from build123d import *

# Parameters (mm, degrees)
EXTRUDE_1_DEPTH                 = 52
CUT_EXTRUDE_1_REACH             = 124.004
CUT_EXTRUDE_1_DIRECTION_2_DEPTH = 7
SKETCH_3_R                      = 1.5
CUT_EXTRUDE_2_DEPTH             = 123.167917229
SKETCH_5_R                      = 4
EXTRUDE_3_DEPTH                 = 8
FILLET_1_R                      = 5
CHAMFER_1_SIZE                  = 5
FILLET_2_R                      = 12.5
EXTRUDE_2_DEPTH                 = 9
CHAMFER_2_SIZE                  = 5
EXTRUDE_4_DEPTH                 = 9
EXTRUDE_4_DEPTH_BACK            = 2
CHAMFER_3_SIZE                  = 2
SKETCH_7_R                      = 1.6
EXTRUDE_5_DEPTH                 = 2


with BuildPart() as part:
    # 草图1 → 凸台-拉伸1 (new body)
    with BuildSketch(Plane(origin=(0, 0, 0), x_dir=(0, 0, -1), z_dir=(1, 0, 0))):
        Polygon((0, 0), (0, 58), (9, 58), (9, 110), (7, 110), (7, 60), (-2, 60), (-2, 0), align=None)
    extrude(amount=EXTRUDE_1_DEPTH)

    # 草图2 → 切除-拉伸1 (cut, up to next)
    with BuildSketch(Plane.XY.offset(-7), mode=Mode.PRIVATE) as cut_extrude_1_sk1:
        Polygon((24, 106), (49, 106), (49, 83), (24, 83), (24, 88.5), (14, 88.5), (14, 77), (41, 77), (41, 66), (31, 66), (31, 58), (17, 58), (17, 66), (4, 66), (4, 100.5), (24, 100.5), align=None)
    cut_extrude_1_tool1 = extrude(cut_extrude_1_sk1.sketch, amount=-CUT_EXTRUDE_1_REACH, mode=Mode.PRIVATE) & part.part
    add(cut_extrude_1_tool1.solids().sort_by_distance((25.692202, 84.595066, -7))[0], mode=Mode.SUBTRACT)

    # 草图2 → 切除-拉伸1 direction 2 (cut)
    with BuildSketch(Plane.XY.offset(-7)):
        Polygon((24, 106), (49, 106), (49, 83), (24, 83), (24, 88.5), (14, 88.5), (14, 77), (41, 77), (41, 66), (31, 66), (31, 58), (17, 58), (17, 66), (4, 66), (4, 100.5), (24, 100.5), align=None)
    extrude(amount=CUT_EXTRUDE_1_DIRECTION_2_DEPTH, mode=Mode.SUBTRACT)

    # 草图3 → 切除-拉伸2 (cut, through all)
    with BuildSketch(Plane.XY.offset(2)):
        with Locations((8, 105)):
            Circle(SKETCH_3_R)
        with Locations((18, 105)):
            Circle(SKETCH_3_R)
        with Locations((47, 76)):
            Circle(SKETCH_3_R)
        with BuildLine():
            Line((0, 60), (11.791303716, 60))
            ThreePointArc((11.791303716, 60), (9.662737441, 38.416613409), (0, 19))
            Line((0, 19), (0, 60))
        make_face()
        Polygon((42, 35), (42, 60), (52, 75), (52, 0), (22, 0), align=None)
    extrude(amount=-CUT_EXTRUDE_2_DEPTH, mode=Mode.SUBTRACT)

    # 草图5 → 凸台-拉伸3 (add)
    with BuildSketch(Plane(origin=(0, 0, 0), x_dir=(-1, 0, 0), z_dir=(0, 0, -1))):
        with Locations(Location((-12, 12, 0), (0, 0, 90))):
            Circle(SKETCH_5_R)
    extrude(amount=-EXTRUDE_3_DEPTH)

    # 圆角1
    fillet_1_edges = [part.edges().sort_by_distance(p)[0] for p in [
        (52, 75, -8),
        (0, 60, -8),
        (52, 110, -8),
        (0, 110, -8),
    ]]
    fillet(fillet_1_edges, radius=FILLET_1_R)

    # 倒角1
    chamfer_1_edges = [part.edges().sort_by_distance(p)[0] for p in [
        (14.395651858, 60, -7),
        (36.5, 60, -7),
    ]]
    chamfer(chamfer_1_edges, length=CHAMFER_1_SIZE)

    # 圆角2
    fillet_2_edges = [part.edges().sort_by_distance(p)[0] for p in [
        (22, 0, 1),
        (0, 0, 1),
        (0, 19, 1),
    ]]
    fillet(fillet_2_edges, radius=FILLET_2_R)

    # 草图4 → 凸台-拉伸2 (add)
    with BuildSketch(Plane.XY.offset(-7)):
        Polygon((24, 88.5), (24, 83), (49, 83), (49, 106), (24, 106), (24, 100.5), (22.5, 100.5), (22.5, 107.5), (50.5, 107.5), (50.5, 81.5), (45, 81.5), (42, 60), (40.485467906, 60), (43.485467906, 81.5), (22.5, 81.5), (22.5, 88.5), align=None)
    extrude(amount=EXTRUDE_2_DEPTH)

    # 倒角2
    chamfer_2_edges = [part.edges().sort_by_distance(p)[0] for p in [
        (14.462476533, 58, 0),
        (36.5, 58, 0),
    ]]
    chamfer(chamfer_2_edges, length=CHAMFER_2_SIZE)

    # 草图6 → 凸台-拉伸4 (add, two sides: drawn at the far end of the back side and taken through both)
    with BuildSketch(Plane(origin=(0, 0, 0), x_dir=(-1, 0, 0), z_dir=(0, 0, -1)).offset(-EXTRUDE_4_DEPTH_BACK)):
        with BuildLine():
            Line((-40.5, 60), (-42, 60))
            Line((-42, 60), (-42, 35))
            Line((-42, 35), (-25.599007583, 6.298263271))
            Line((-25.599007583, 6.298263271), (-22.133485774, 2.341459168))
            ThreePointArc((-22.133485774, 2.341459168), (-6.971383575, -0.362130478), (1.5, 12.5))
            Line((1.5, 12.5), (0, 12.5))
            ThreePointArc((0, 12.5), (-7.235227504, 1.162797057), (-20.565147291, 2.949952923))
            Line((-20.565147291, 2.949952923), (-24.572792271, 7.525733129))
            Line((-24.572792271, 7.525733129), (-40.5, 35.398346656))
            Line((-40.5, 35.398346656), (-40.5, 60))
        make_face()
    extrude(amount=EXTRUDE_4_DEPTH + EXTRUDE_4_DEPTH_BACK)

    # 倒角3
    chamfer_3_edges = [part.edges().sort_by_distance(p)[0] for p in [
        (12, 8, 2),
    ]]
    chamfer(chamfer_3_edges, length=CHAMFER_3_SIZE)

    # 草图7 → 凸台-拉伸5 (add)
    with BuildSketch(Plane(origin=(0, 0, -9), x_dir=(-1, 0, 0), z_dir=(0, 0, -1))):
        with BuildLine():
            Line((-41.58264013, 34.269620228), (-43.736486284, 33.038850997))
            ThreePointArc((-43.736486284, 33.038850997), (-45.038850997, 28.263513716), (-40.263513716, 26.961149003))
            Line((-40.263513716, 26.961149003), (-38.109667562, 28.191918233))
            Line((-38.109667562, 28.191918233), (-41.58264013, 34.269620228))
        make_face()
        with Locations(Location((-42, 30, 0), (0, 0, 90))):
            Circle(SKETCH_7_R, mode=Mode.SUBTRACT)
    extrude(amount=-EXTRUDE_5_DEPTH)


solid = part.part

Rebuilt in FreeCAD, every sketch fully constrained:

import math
import FreeCAD as App
import Part
import Sketcher


def edges_at(feature, points):
    """Names of the edges that pass closest to the given points."""
    edges = feature.Shape.Edges
    near = lambda p: min(range(len(edges)), key=lambda i: edges[i].distToShape(Part.Vertex(*p))[0])
    return sorted({f"Edge{near(p) + 1}" for p in points})


def add_polygon(sketch, points):
    """Adds a closed chain of lines whose ends are joined by coincident constraints."""
    first, n = sketch.GeometryCount, len(points)
    for a, b in zip(points, points[1:] + points[:1]):
        sketch.addGeometry(Part.LineSegment(App.Vector(*a, 0), App.Vector(*b, 0)), False)
    for i in range(n):
        sketch.addConstraint(Sketcher.Constraint("Coincident", first + i, 2, first + (i + 1) % n, 1))

doc = App.newDocument("Part")
params = doc.addObject("Spreadsheet::Sheet", "Params")
for row, (alias, value) in enumerate([
    ("sketch1_width", "58 mm"),
    ("sketch1_width2", "52 mm"),
    ("sketch1_width3", "50 mm"),
    ("sketch1_height", "9 mm"),
    ("sketch1_height2", "2 mm"),
    ("pad1_length", "52 mm"),
    ("sketch2_width", "25 mm"),
    ("sketch2_width2", "20 mm"),
    ("sketch2_width3", "13 mm"),
    ("sketch2_width4", "14 mm"),
    ("sketch2_width5", "10 mm"),
    ("sketch3_width", "25 mm"),
    ("sketch3_width2", "20 mm"),
    ("sketch3_width3", "13 mm"),
    ("sketch3_width4", "14 mm"),
    ("sketch3_width5", "10 mm"),
    ("pocket2_length", "7 mm"),
    ("sketch4_diameter", "3 mm"),
    ("sketch4_radius", "60 mm"),
    ("sketch4_width", "30 mm"),
    ("sketch4_height", "41 mm"),
    ("sketch4_height2", "25 mm"),
    ("sketch5_diameter", "8 mm"),
    ("pad2_length", "8 mm"),
    ("fillet_radius", "5 mm"),
    ("chamfer_size", "5 mm"),
    ("fillet2_radius", "12.5 mm"),
    ("sketch6_width", "28 mm"),
    ("sketch6_width2", "25 mm"),
    ("sketch6_height", "7 mm"),
    ("sketch6_height2", "26 mm"),
    ("sketch6_height3", "23 mm"),
    ("pad3_length", "9 mm"),
    ("chamfer2_size", "5 mm"),
    ("sketch7_radius", "14 mm"),
    ("sketch7_radius2", "12.5 mm"),
    ("sketch7_height", "25 mm"),
    ("pad4_length", "9 mm"),
    ("pad4_length2", "2 mm"),
    ("chamfer3_size", "2 mm"),
    ("sketch8_diameter", "3.2 mm"),
    ("sketch8_radius", "3.5 mm"),
    ("pad5_length", "2 mm"),
], start=1):
    params.set(f"A{row}", alias)
    params.set(f"B{row}", "=" + value)
    params.setAlias(f"B{row}", alias)

body = doc.addObject("PartDesign::Body", "Body")

# Sketch on YZ plane
sketch1 = body.newObject("Sketcher::SketchObject", "Sketch")
sketch1.AttachmentSupport = (doc.getObject("YZ_Plane"), [""])
sketch1.MapMode = "FlatFace"
add_polygon(sketch1, [(0, 0), (58, 0), (58, -9), (110, -9), (110, -7), (60, -7), (60, 2), (0, 2)])  # lines 0-7
sketch1.addConstraint([
    Sketcher.Constraint("Horizontal", 0),
    Sketcher.Constraint("Vertical", 1),
    Sketcher.Constraint("Horizontal", 2),
    Sketcher.Constraint("Vertical", 3),
    Sketcher.Constraint("Horizontal", 4),
    Sketcher.Constraint("Vertical", 5),
    Sketcher.Constraint("Horizontal", 6),
    Sketcher.Constraint("Vertical", 7),
    Sketcher.Constraint("Coincident", 7, 2, -1, 1),
    Sketcher.Constraint("Equal", 1, 5),
    Sketcher.Constraint("DistanceX", 0, 1, 0, 2, 58.0),
    Sketcher.Constraint("DistanceX", 2, 1, 2, 2, 52.0),
    Sketcher.Constraint("DistanceX", 4, 2, 4, 1, 50.0),
    Sketcher.Constraint("DistanceY", 1, 2, 1, 1, 9.0),
    Sketcher.Constraint("DistanceY", 3, 1, 3, 2, 2.0),
])
sketch1.setExpression("Constraints[18]", "Params.sketch1_width")
sketch1.setExpression("Constraints[19]", "Params.sketch1_width2")
sketch1.setExpression("Constraints[20]", "Params.sketch1_width3")
sketch1.setExpression("Constraints[21]", "Params.sketch1_height")
sketch1.setExpression("Constraints[22]", "Params.sketch1_height2")
pad1 = body.newObject("PartDesign::Pad", "Pad")
pad1.Profile = sketch1
pad1.setExpression("Length", "Params.pad1_length")

# Sketch on XY plane
sketch2 = body.newObject("Sketcher::SketchObject", "Sketch001")
sketch2.AttachmentSupport = (doc.getObject("XY_Plane"), [""])
sketch2.MapMode = "FlatFace"
sketch2.AttachmentOffset = App.Placement(App.Vector(0, 0, -7), App.Rotation())
add_polygon(sketch2, [(49, 106), (24, 106), (24, 100), (4, 100), (4, 66), (17, 66), (17, 58), (31, 58), (31, 66), (41, 66), (41, 77), (14, 77), (14, 88), (24, 88), (24, 83), (49, 83)])  # lines 0-15
sketch2.addConstraint([
    Sketcher.Constraint("Horizontal", 0),
    Sketcher.Constraint("Vertical", 1),
    Sketcher.Constraint("Horizontal", 2),
    Sketcher.Constraint("Vertical", 3),
    Sketcher.Constraint("Horizontal", 4),
    Sketcher.Constraint("Vertical", 5),
    Sketcher.Constraint("Horizontal", 6),
    Sketcher.Constraint("Vertical", 7),
    Sketcher.Constraint("Horizontal", 8),
    Sketcher.Constraint("Vertical", 9),
    Sketcher.Constraint("Horizontal", 10),
    Sketcher.Constraint("Vertical", 11),
    Sketcher.Constraint("Horizontal", 12),
    Sketcher.Constraint("Vertical", 13),
    Sketcher.Constraint("Horizontal", 14),
    Sketcher.Constraint("Vertical", 15),
    Sketcher.Constraint("Horizontal", 4, 2, 7, 2),
    Sketcher.Constraint("Vertical", 1, 2, 12, 2),
    Sketcher.Constraint("Equal", 8, 12),
    Sketcher.Constraint("Equal", 1, 13),
    Sketcher.Constraint("DistanceX", 0, 2, 0, 1, 25.0),
    Sketcher.Constraint("DistanceX", 2, 2, 2, 1, 20.0),
    Sketcher.Constraint("DistanceX", 4, 1, 4, 2, 13.0),
    Sketcher.Constraint("DistanceX", 6, 1, 6, 2, 14.0),
    Sketcher.Constraint("DistanceX", 8, 1, 8, 2, 10.0),
    Sketcher.Constraint("DistanceY", 5, 2, 5, 1, 8.0),
    Sketcher.Constraint("DistanceY", 9, 1, 9, 2, 11.0),
    Sketcher.Constraint("DistanceY", 15, 1, 15, 2, 23.0),
    Sketcher.Constraint("DistanceY", 1, 2, 1, 1, 5.5),
    Sketcher.Constraint("DistanceY", 3, 2, 3, 1, 34.5),
    Sketcher.Constraint("DistanceX", -1, 1, 0, 2, 24.0),
    Sketcher.Constraint("DistanceY", -1, 1, 0, 2, 106.0),
])
sketch2.setExpression("Constraints[36]", "Params.sketch2_width")
sketch2.setExpression("Constraints[37]", "Params.sketch2_width2")
sketch2.setExpression("Constraints[38]", "Params.sketch2_width3")
sketch2.setExpression("Constraints[39]", "Params.sketch2_width4")
sketch2.setExpression("Constraints[40]", "Params.sketch2_width5")
pocket1 = body.newObject("PartDesign::Pocket", "Pocket")
pocket1.Profile = sketch2
pocket1.Type = "UpToFirst"

# Sketch on XY plane
sketch3 = body.newObject("Sketcher::SketchObject", "Sketch002")
sketch3.AttachmentSupport = (doc.getObject("XY_Plane"), [""])
sketch3.MapMode = "FlatFace"
sketch3.AttachmentOffset = App.Placement(App.Vector(0, 0, -7), App.Rotation())
add_polygon(sketch3, [(49, 106), (24, 106), (24, 100), (4, 100), (4, 66), (17, 66), (17, 58), (31, 58), (31, 66), (41, 66), (41, 77), (14, 77), (14, 88), (24, 88), (24, 83), (49, 83)])  # lines 0-15
sketch3.addConstraint([
    Sketcher.Constraint("Horizontal", 0),
    Sketcher.Constraint("Vertical", 1),
    Sketcher.Constraint("Horizontal", 2),
    Sketcher.Constraint("Vertical", 3),
    Sketcher.Constraint("Horizontal", 4),
    Sketcher.Constraint("Vertical", 5),
    Sketcher.Constraint("Horizontal", 6),
    Sketcher.Constraint("Vertical", 7),
    Sketcher.Constraint("Horizontal", 8),
    Sketcher.Constraint("Vertical", 9),
    Sketcher.Constraint("Horizontal", 10),
    Sketcher.Constraint("Vertical", 11),
    Sketcher.Constraint("Horizontal", 12),
    Sketcher.Constraint("Vertical", 13),
    Sketcher.Constraint("Horizontal", 14),
    Sketcher.Constraint("Vertical", 15),
    Sketcher.Constraint("Horizontal", 4, 2, 7, 2),
    Sketcher.Constraint("Vertical", 1, 2, 12, 2),
    Sketcher.Constraint("Equal", 8, 12),
    Sketcher.Constraint("Equal", 1, 13),
    Sketcher.Constraint("DistanceX", 0, 2, 0, 1, 25.0),
    Sketcher.Constraint("DistanceX", 2, 2, 2, 1, 20.0),
    Sketcher.Constraint("DistanceX", 4, 1, 4, 2, 13.0),
    Sketcher.Constraint("DistanceX", 6, 1, 6, 2, 14.0),
    Sketcher.Constraint("DistanceX", 8, 1, 8, 2, 10.0),
    Sketcher.Constraint("DistanceY", 5, 2, 5, 1, 8.0),
    Sketcher.Constraint("DistanceY", 9, 1, 9, 2, 11.0),
    Sketcher.Constraint("DistanceY", 15, 1, 15, 2, 23.0),
    Sketcher.Constraint("DistanceY", 1, 2, 1, 1, 5.5),
    Sketcher.Constraint("DistanceY", 3, 2, 3, 1, 34.5),
    Sketcher.Constraint("DistanceX", -1, 1, 0, 2, 24.0),
    Sketcher.Constraint("DistanceY", -1, 1, 0, 2, 106.0),
])
sketch3.setExpression("Constraints[36]", "Params.sketch3_width")
sketch3.setExpression("Constraints[37]", "Params.sketch3_width2")
sketch3.setExpression("Constraints[38]", "Params.sketch3_width3")
sketch3.setExpression("Constraints[39]", "Params.sketch3_width4")
sketch3.setExpression("Constraints[40]", "Params.sketch3_width5")
pocket2 = body.newObject("PartDesign::Pocket", "Pocket001")
pocket2.Profile = sketch3
pocket2.setExpression("Length", "Params.pocket2_length")
pocket2.Reversed = True

# Sketch on XY plane
sketch4 = body.newObject("Sketcher::SketchObject", "Sketch003")
sketch4.AttachmentSupport = (doc.getObject("XY_Plane"), [""])
sketch4.MapMode = "FlatFace"
sketch4.AttachmentOffset = App.Placement(App.Vector(0, 0, 2), App.Rotation())
sketch4.addGeometry(Part.Circle(App.Vector(8, 105, 0), App.Vector(0, 0, 1), 1.5), False)  # 0
sketch4.addGeometry(Part.Circle(App.Vector(18, 105, 0), App.Vector(0, 0, 1), 1.5), False)  # 1
sketch4.addGeometry(Part.Circle(App.Vector(47, 76, 0), App.Vector(0, 0, 1), 1.5), False)  # 2
sketch4.addGeometry(Part.LineSegment(App.Vector(11.8, 60, 0), App.Vector(0, 60, 0)), False)  # 3
sketch4.addGeometry(Part.LineSegment(App.Vector(0, 60, 0), App.Vector(0, 19, 0)), False)  # 4
sketch4.addGeometry(Part.ArcOfCircle(Part.Circle(App.Vector(-48, 55, 0), App.Vector(0, 0, 1), 60), math.radians(-37), math.radians(5)), False)  # 5
add_polygon(sketch4, [(42, 60), (42, 35), (22, 0), (52, 0), (52, 75)])  # lines 6-10
sketch4.addConstraint([
    Sketcher.Constraint("Coincident", 3, 2, 4, 1),
    Sketcher.Constraint("Coincident", 4, 2, 5, 1),
    Sketcher.Constraint("Coincident", 5, 2, 3, 1),
    Sketcher.Constraint("Horizontal", 3),
    Sketcher.Constraint("Vertical", 4),
    Sketcher.Constraint("Vertical", 6),
    Sketcher.Constraint("Horizontal", 8),
    Sketcher.Constraint("Vertical", 9),
    Sketcher.Constraint("Equal", 0, 1),
    Sketcher.Constraint("Equal", 1, 2),
    Sketcher.Constraint("PointOnObject", 3, 2, -2),
    Sketcher.Constraint("PointOnObject", 7, 2, -1),
    Sketcher.Constraint("Horizontal", 0, 3, 1, 3),
    Sketcher.Constraint("Horizontal", 5, 2, 10, 2),
    Sketcher.Constraint("Diameter", 0, 3.0),
    Sketcher.Constraint("Radius", 5, 60.0),
    Sketcher.Constraint("DistanceX", 8, 1, 8, 2, 30.0),
    Sketcher.Constraint("DistanceY", 4, 2, 4, 1, 41.0),
    Sketcher.Constraint("DistanceY", 6, 2, 6, 1, 25.0),
    Sketcher.Constraint("DistanceY", 9, 1, 9, 2, 75.0),
    Sketcher.Constraint("DistanceX", -1, 1, 0, 3, 8.0),
    Sketcher.Constraint("DistanceY", -1, 1, 0, 3, 105.0),
    Sketcher.Constraint("DistanceX", -1, 1, 1, 3, 18.0),
    Sketcher.Constraint("DistanceX", -1, 1, 2, 3, 47.0),
    Sketcher.Constraint("DistanceY", -1, 1, 2, 3, 76.0),
    Sketcher.Constraint("DistanceX", 5, 3, -1, 1, 48.0),
    Sketcher.Constraint("DistanceY", -1, 1, 5, 3, 55.0),
    Sketcher.Constraint("DistanceX", -1, 1, 6, 2, 42.0),
    Sketcher.Constraint("DistanceX", -1, 1, 7, 2, 22.0),
])
sketch4.setExpression("Constraints[19]", "Params.sketch4_diameter")
sketch4.setExpression("Constraints[20]", "Params.sketch4_radius")
sketch4.setExpression("Constraints[21]", "Params.sketch4_width")
sketch4.setExpression("Constraints[22]", "Params.sketch4_height")
sketch4.setExpression("Constraints[23]", "Params.sketch4_height2")
pocket3 = body.newObject("PartDesign::Pocket", "Pocket002")
pocket3.Profile = sketch4
pocket3.Type = "ThroughAll"

# Sketch on XY plane
sketch5 = body.newObject("Sketcher::SketchObject", "Sketch004")
sketch5.AttachmentSupport = (doc.getObject("XY_Plane"), [""])
sketch5.MapMode = "FlatFace"
sketch5.addGeometry(Part.Circle(App.Vector(12, 12, 0), App.Vector(0, 0, 1), 4), False)
sketch5.addConstraint([
    Sketcher.Constraint("Diameter", 0, 8.0),
    Sketcher.Constraint("DistanceX", -1, 1, 0, 3, 12.0),
    Sketcher.Constraint("DistanceY", -1, 1, 0, 3, 12.0),
])
sketch5.setExpression("Constraints[0]", "Params.sketch5_diameter")
pad2 = body.newObject("PartDesign::Pad", "Pad001")
pad2.Profile = sketch5
pad2.setExpression("Length", "Params.pad2_length")
doc.recompute()

fillet = body.newObject("PartDesign::Fillet", "Fillet")
fillet.Base = (pad2, edges_at(pad2, [
    (52, 75, -8),
    (0, 60, -8),
    (52, 110, -8),
    (0, 110, -8),
]))
fillet.setExpression("Radius", "Params.fillet_radius")
doc.recompute()

chamfer = body.newObject("PartDesign::Chamfer", "Chamfer")
chamfer.Base = (fillet, edges_at(fillet, [(14.396, 60, -7), (36.5, 60, -7)]))
chamfer.setExpression("Size", "Params.chamfer_size")
doc.recompute()

fillet2 = body.newObject("PartDesign::Fillet", "Fillet001")
fillet2.Base = (chamfer, edges_at(chamfer, [(22, 0, 1), (0, 0, 1), (0, 19, 1)]))
fillet2.setExpression("Radius", "Params.fillet2_radius")

# Sketch on XY plane
sketch6 = body.newObject("Sketcher::SketchObject", "Sketch005")
sketch6.AttachmentSupport = (doc.getObject("XY_Plane"), [""])
sketch6.MapMode = "FlatFace"
sketch6.AttachmentOffset = App.Placement(App.Vector(0, 0, -7), App.Rotation())
add_polygon(sketch6, [(24, 83), (24, 88.5), (22.5, 88.5), (22.5, 81.5), (43.5, 81.5), (40.5, 60), (42, 60), (45, 81.5), (50.5, 81.5), (50.5, 107.5), (22.5, 107.5), (22.5, 100.5), (24, 100.5), (24, 106), (49, 106), (49, 83)])  # lines 0-15
sketch6.addConstraint([
    Sketcher.Constraint("Vertical", 0),
    Sketcher.Constraint("Horizontal", 1),
    Sketcher.Constraint("Vertical", 2),
    Sketcher.Constraint("Horizontal", 3),
    Sketcher.Constraint("Horizontal", 5),
    Sketcher.Constraint("Horizontal", 7),
    Sketcher.Constraint("Vertical", 8),
    Sketcher.Constraint("Horizontal", 9),
    Sketcher.Constraint("Vertical", 10),
    Sketcher.Constraint("Horizontal", 11),
    Sketcher.Constraint("Vertical", 12),
    Sketcher.Constraint("Horizontal", 13),
    Sketcher.Constraint("Vertical", 14),
    Sketcher.Constraint("Horizontal", 15),
    Sketcher.Constraint("Parallel", 4, 6),
    Sketcher.Constraint("Horizontal", 3, 2, 6, 2),
    Sketcher.Constraint("Vertical", 2, 2, 9, 2),
    Sketcher.Constraint("Vertical", 0, 2, 11, 2),
    Sketcher.Constraint("Equal", 7, 0),
    Sketcher.Constraint("Equal", 2, 10),
    Sketcher.Constraint("Equal", 0, 12),
    Sketcher.Constraint("DistanceX", 9, 2, 9, 1, 28.0),
    Sketcher.Constraint("DistanceX", 13, 1, 13, 2, 25.0),
    Sketcher.Constraint("DistanceY", 2, 2, 2, 1, 7.0),
    Sketcher.Constraint("DistanceY", 8, 1, 8, 2, 26.0),
    Sketcher.Constraint("DistanceY", 14, 2, 14, 1, 23.0),
    Sketcher.Constraint("DistanceX", 1, 2, 1, 1, 1.5),
    Sketcher.Constraint("DistanceX", -1, 1, 0, 2, 24.0),
    Sketcher.Constraint("DistanceY", -1, 1, 4, 2, 60.0),
    Sketcher.Constraint("DistanceX", -1, 1, 5, 2, 42.0),
    Sketcher.Constraint("DistanceY", -1, 1, 12, 2, 106.0),
    Sketcher.Constraint("DistanceX", 3, 1, 3, 2, 20.985468),
])
sketch6.setExpression("Constraints[37]", "Params.sketch6_width")
sketch6.setExpression("Constraints[38]", "Params.sketch6_width2")
sketch6.setExpression("Constraints[39]", "Params.sketch6_height")
sketch6.setExpression("Constraints[40]", "Params.sketch6_height2")
sketch6.setExpression("Constraints[41]", "Params.sketch6_height3")
pad3 = body.newObject("PartDesign::Pad", "Pad002")
pad3.Profile = sketch6
pad3.setExpression("Length", "Params.pad3_length")
doc.recompute()

chamfer2 = body.newObject("PartDesign::Chamfer", "Chamfer001")
chamfer2.Base = (pad3, edges_at(pad3, [(14.462, 58, 0), (36.5, 58, 0)]))
chamfer2.setExpression("Size", "Params.chamfer2_size")

# Sketch on XY plane
sketch7 = body.newObject("Sketcher::SketchObject", "Sketch006")
sketch7.AttachmentSupport = (doc.getObject("XY_Plane"), [""])
sketch7.MapMode = "FlatFace"
sketch7.addGeometry([
    Part.LineSegment(App.Vector(40.5, 60, 0), App.Vector(42, 60, 0)),  # 0
    Part.LineSegment(App.Vector(42, 60, 0), App.Vector(42, 35, 0)),  # 1
    Part.LineSegment(App.Vector(42, 35, 0), App.Vector(25.6, 6.3, 0)),  # 2
    Part.LineSegment(App.Vector(25.6, 6.3, 0), App.Vector(22.1, 2.3, 0)),  # 3
    Part.ArcOfCircle(Part.Circle(App.Vector(12.5, 12.5, 0), App.Vector(0, 0, 1), 14), math.radians(180), math.radians(313)),  # 4
    Part.LineSegment(App.Vector(-1.5, 12.5, 0), App.Vector(0, 12.5, 0)),  # 5
    Part.ArcOfCircle(Part.Circle(App.Vector(12.5, 12.5, 0), App.Vector(0, 0, 1), 12.5), math.radians(180), math.radians(310)),  # 6
    Part.LineSegment(App.Vector(20.6, 2.9, 0), App.Vector(24.6, 7.5, 0)),  # 7
    Part.LineSegment(App.Vector(24.6, 7.5, 0), App.Vector(40.5, 35.4, 0)),  # 8
    Part.LineSegment(App.Vector(40.5, 35.4, 0), App.Vector(40.5, 60, 0)),  # 9
], False)
sketch7.addConstraint([
    Sketcher.Constraint("Coincident", 0, 2, 1, 1),
    Sketcher.Constraint("Coincident", 1, 2, 2, 1),
    Sketcher.Constraint("Coincident", 2, 2, 3, 1),
    Sketcher.Constraint("Coincident", 3, 2, 4, 2),
    Sketcher.Constraint("Coincident", 4, 1, 5, 1),
    Sketcher.Constraint("Coincident", 5, 2, 6, 1),
    Sketcher.Constraint("Coincident", 6, 2, 7, 1),
    Sketcher.Constraint("Coincident", 7, 2, 8, 1),
    Sketcher.Constraint("Coincident", 8, 2, 9, 1),
    Sketcher.Constraint("Coincident", 9, 2, 0, 1),
    Sketcher.Constraint("Horizontal", 0),
    Sketcher.Constraint("Vertical", 1),
    Sketcher.Constraint("Horizontal", 5),
    Sketcher.Constraint("Vertical", 9),
    Sketcher.Constraint("Coincident", 6, 3, 4, 3),
    Sketcher.Constraint("PointOnObject", 5, 2, -2),
    Sketcher.Constraint("Parallel", 3, 7),
    Sketcher.Constraint("Parallel", 2, 8),
    Sketcher.Constraint("Horizontal", 6, 3, 4, 1),
    Sketcher.Constraint("Equal", 0, 5),
    Sketcher.Constraint("Radius", 4, 14.0),
    Sketcher.Constraint("Radius", 6, 12.5),
    Sketcher.Constraint("DistanceY", 1, 2, 1, 1, 25.0),
    Sketcher.Constraint("DistanceX", -1, 1, 0, 2, 42.0),
    Sketcher.Constraint("DistanceY", -1, 1, 0, 2, 60.0),
    Sketcher.Constraint("DistanceY", -1, 1, 4, 3, 12.5),
    Sketcher.Constraint("Distance", 3, 5.259861),
    Sketcher.Constraint("Distance", 7, 6.082679),
    Sketcher.Constraint("DistanceY", 9, 1, 9, 2, 24.601653),
    Sketcher.Constraint("DistanceY", -1, 1, 3, 2, 2.341459),
    Sketcher.Constraint("DistanceX", 3, 2, 2, 2, 3.465522),
])
sketch7.setExpression("Constraints[20]", "Params.sketch7_radius")
sketch7.setExpression("Constraints[21]", "Params.sketch7_radius2")
sketch7.setExpression("Constraints[22]", "Params.sketch7_height")
pad4 = body.newObject("PartDesign::Pad", "Pad003")
pad4.Profile = sketch7
pad4.Type = "TwoLengths"
pad4.setExpression("Length", "Params.pad4_length")
pad4.setExpression("Length2", "Params.pad4_length2")
pad4.Reversed = True
doc.recompute()

chamfer3 = body.newObject("PartDesign::Chamfer", "Chamfer002")
chamfer3.Base = (pad4, edges_at(pad4, [(12, 8, 2)]))
chamfer3.setExpression("Size", "Params.chamfer3_size")

# Sketch on XY plane
sketch8 = body.newObject("Sketcher::SketchObject", "Sketch007")
sketch8.AttachmentSupport = (doc.getObject("XY_Plane"), [""])
sketch8.MapMode = "FlatFace"
sketch8.AttachmentOffset = App.Placement(App.Vector(0, 0, -9), App.Rotation())
sketch8.addGeometry([
    Part.LineSegment(App.Vector(41.6, 34.3, 0), App.Vector(43.7, 33, 0)),  # 0
    Part.ArcOfCircle(Part.Circle(App.Vector(42, 30, 0), App.Vector(0, 0, 1), 3.5), math.radians(-120), math.radians(60)),  # 1
    Part.LineSegment(App.Vector(40.3, 27, 0), App.Vector(38.1, 28.2, 0)),  # 2
    Part.LineSegment(App.Vector(38.1, 28.2, 0), App.Vector(41.6, 34.3, 0)),  # 3
    Part.Circle(App.Vector(42, 30, 0), App.Vector(0, 0, 1), 1.6),  # 4
], False)
sketch8.addConstraint([
    Sketcher.Constraint("Tangent", 0, 2, 1, 2),
    Sketcher.Constraint("Tangent", 1, 1, 2, 1),
    Sketcher.Constraint("Coincident", 2, 2, 3, 1),
    Sketcher.Constraint("Coincident", 3, 2, 0, 1),
    Sketcher.Constraint("Coincident", 4, 3, 1, 3),
    Sketcher.Constraint("Parallel", 0, 2),
    Sketcher.Constraint("Perpendicular", 2, 3),
    Sketcher.Constraint("Diameter", 4, 3.2),
    Sketcher.Constraint("Radius", 1, 3.5),
    Sketcher.Constraint("DistanceX", -1, 1, 1, 3, 42.0),
    Sketcher.Constraint("DistanceY", -1, 1, 1, 3, 30.0),
    Sketcher.Constraint("DistanceY", 1, 1, 0, 2, 6.077702),
    Sketcher.Constraint("DistanceY", -1, 1, 2, 2, 28.191918),
])
sketch8.setExpression("Constraints[7]", "Params.sketch8_diameter")
sketch8.setExpression("Constraints[8]", "Params.sketch8_radius")
pad5 = body.newObject("PartDesign::Pad", "Pad004")
pad5.Profile = sketch8
pad5.setExpression("Length", "Params.pad5_length")

doc.recompute()
